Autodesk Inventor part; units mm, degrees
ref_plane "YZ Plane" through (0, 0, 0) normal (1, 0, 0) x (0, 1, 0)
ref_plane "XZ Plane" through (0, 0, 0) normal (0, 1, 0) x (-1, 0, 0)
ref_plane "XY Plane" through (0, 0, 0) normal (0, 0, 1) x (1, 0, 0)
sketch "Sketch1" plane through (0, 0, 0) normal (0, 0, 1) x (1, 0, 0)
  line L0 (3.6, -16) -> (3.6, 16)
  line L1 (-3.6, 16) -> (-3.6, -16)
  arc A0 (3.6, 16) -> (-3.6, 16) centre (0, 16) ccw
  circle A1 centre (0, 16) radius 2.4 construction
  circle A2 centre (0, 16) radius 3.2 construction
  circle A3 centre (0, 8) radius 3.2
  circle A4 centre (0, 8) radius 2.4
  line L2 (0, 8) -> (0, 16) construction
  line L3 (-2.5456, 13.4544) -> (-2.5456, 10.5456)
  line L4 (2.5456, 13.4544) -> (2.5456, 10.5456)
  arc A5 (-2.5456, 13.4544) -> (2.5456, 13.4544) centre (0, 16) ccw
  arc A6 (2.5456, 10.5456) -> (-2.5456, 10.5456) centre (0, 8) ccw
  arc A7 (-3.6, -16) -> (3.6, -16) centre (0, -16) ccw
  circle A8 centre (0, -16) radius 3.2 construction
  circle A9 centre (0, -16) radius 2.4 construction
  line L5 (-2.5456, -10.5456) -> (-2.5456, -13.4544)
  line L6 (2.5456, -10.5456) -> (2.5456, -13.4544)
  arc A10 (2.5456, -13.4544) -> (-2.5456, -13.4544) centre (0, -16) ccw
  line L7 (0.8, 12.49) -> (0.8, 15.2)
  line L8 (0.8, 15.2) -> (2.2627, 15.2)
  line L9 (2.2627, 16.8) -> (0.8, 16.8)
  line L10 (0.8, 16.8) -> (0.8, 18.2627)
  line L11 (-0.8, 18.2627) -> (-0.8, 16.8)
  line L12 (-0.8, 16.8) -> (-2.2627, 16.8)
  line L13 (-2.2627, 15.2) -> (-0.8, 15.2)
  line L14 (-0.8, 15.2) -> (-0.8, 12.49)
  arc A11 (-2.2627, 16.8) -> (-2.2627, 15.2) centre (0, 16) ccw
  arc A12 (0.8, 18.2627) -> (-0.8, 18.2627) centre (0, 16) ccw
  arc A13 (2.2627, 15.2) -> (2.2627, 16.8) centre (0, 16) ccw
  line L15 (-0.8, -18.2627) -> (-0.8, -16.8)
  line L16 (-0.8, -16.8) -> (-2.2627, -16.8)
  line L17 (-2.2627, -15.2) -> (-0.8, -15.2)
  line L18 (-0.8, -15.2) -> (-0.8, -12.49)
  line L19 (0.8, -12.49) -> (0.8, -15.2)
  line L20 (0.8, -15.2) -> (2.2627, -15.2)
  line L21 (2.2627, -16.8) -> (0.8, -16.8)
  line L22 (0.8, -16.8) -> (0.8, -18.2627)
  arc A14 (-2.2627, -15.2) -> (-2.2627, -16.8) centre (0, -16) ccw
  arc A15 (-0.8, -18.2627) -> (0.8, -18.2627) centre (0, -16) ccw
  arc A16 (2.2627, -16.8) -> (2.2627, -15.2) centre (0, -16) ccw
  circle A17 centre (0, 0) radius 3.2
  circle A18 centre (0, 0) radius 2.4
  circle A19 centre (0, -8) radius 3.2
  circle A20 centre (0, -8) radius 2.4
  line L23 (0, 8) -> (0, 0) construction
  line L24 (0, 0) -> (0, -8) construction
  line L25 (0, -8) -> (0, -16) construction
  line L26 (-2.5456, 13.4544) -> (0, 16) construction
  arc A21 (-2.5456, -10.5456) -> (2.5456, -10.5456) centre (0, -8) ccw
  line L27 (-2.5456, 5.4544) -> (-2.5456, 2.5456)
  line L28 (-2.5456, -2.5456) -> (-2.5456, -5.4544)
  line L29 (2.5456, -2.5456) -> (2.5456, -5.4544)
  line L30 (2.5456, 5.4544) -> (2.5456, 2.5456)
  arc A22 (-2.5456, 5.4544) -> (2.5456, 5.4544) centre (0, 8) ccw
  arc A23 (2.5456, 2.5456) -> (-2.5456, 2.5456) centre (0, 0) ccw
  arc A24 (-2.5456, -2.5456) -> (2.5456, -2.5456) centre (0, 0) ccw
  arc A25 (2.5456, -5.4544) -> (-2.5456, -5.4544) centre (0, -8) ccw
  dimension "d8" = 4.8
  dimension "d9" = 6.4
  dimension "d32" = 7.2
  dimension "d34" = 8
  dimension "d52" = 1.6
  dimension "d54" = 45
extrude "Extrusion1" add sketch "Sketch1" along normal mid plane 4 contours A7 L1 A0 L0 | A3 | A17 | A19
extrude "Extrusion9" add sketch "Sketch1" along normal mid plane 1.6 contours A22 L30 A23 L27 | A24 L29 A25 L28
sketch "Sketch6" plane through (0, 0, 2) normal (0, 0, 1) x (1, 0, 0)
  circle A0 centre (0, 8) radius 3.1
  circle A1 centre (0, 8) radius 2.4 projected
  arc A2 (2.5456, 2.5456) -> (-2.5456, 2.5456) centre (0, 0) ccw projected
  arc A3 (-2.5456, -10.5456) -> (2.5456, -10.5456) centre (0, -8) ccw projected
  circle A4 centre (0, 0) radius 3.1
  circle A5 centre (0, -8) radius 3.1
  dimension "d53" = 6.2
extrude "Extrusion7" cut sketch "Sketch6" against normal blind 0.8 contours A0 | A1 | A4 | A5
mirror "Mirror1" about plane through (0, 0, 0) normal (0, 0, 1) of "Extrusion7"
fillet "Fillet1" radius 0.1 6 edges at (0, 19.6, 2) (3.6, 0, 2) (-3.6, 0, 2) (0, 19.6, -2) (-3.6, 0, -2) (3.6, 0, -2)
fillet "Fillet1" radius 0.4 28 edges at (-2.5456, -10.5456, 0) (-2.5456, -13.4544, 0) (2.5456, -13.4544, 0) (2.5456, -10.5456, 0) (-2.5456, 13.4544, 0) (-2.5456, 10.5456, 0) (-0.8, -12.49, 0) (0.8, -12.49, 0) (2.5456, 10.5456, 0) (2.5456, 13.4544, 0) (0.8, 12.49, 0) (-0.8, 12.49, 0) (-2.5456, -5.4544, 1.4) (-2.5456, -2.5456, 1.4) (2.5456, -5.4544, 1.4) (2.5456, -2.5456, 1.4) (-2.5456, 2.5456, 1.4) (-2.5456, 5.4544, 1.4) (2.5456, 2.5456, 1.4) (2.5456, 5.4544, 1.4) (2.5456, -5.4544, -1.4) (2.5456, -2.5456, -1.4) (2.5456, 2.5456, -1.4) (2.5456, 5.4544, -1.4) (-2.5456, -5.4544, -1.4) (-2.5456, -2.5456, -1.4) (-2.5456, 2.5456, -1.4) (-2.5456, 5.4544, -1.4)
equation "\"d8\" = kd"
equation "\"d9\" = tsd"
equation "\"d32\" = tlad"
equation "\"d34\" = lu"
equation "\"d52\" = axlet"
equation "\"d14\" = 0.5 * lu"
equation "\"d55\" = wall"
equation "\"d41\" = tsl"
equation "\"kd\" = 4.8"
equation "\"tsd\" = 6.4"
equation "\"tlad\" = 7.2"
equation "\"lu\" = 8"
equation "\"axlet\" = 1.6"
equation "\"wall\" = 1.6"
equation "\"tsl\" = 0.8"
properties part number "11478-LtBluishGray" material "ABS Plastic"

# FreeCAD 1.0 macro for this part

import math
import FreeCAD as App
import Part
import Sketcher

V = App.Vector
Q = App.Units.Quantity


def edges_at(feature, points):
    """Names of the edges that pass closest to the given points."""
    edges = feature.Shape.Edges
    near = lambda p: min(range(len(edges)), key=lambda i: edges[i].distToShape(Part.Vertex(*p))[0])
    return sorted({f"Edge{near(p) + 1}" for p in points})

doc = App.newDocument("Part")
body = doc.addObject("PartDesign::Body", "Body")

sketch1 = body.newObject("Sketcher::SketchObject", "Sketch")
sketch1.AttachmentSupport = (doc.getObject("XY_Plane"), [""])
sketch1.MapMode = "FlatFace"
sketch1.addGeometry([
    Part.ArcOfCircle(Part.Circle(V(0, -16, 0), V(0, 0, 1), 3.6), math.radians(180), math.radians(360)),
    Part.LineSegment(V(3.6, -16, 0), V(3.6, 16, 0)),
    Part.ArcOfCircle(Part.Circle(V(0, 16, 0), V(0, 0, 1), 3.6), math.radians(0), math.radians(180)),
    Part.LineSegment(V(-3.6, 16, 0), V(-3.6, -16, 0)),
    Part.LineSegment(V(-2.5, -13.5, 0), V(-2.5, -10.5, 0)),
    Part.ArcOfCircle(Part.Circle(V(0, -8, 0), V(0, 0, 1), 3.6), math.radians(-135), math.radians(-45)),
    Part.LineSegment(V(2.5, -10.5, 0), V(2.5, -13.5, 0)),
    Part.ArcOfCircle(Part.Circle(V(0, -16, 0), V(0, 0, 1), 3.6), math.radians(45), math.radians(77)),
    Part.LineSegment(V(0.8, -12.5, 0), V(0.8, -15.2, 0)),
    Part.LineSegment(V(0.8, -15.2, 0), V(2.3, -15.2, 0)),
    Part.ArcOfCircle(Part.Circle(V(0, -16, 0), V(0, 0, 1), 2.4), math.radians(-19), math.radians(19)),
    Part.LineSegment(V(2.3, -16.8, 0), V(0.8, -16.8, 0)),
    Part.LineSegment(V(0.8, -16.8, 0), V(0.8, -18.3, 0)),
    Part.ArcOfCircle(Part.Circle(V(0, -16, 0), V(0, 0, 1), 2.4), math.radians(-109), math.radians(-71)),
    Part.LineSegment(V(-0.8, -18.3, 0), V(-0.8, -16.8, 0)),
    Part.LineSegment(V(-0.8, -16.8, 0), V(-2.3, -16.8, 0)),
    Part.ArcOfCircle(Part.Circle(V(0, -16, 0), V(0, 0, 1), 2.4), math.radians(161), math.radians(199)),
    Part.LineSegment(V(-2.3, -15.2, 0), V(-0.8, -15.2, 0)),
    Part.LineSegment(V(-0.8, -15.2, 0), V(-0.8, -12.5, 0)),
    Part.ArcOfCircle(Part.Circle(V(0, -16, 0), V(0, 0, 1), 3.6), math.radians(103), math.radians(135)),
    Part.LineSegment(V(-2.5, -5.5, 0), V(-2.5, -2.5, 0)),
    Part.ArcOfCircle(Part.Circle(V(0, 0, 0), V(0, 0, 1), 3.6), math.radians(-135), math.radians(-45)),
    Part.LineSegment(V(2.5, -2.5, 0), V(2.5, -5.5, 0)),
    Part.ArcOfCircle(Part.Circle(V(0, -8, 0), V(0, 0, 1), 3.6), math.radians(45), math.radians(135)),
    Part.LineSegment(V(-2.5, 2.5, 0), V(-2.5, 5.5, 0)),
    Part.ArcOfCircle(Part.Circle(V(0, 8, 0), V(0, 0, 1), 3.6), math.radians(-135), math.radians(-45)),
    Part.LineSegment(V(2.5, 5.5, 0), V(2.5, 2.5, 0)),
    Part.ArcOfCircle(Part.Circle(V(0, 0, 0), V(0, 0, 1), 3.6), math.radians(45), math.radians(135)),
    Part.LineSegment(V(-2.5, 10.5, 0), V(-2.5, 13.5, 0)),
    Part.ArcOfCircle(Part.Circle(V(0, 16, 0), V(0, 0, 1), 3.6), math.radians(-135), math.radians(-103)),
    Part.LineSegment(V(-0.8, 12.5, 0), V(-0.8, 15.2, 0)),
    Part.LineSegment(V(-0.8, 15.2, 0), V(-2.3, 15.2, 0)),
    Part.ArcOfCircle(Part.Circle(V(0, 16, 0), V(0, 0, 1), 2.4), math.radians(161), math.radians(199)),
    Part.LineSegment(V(-2.3, 16.8, 0), V(-0.8, 16.8, 0)),
    Part.LineSegment(V(-0.8, 16.8, 0), V(-0.8, 18.3, 0)),
    Part.ArcOfCircle(Part.Circle(V(0, 16, 0), V(0, 0, 1), 2.4), math.radians(71), math.radians(109)),
    Part.LineSegment(V(0.8, 18.3, 0), V(0.8, 16.8, 0)),
    Part.LineSegment(V(0.8, 16.8, 0), V(2.3, 16.8, 0)),
    Part.ArcOfCircle(Part.Circle(V(0, 16, 0), V(0, 0, 1), 2.4), math.radians(-19), math.radians(19)),
    Part.LineSegment(V(2.3, 15.2, 0), V(0.8, 15.2, 0)),
    Part.LineSegment(V(0.8, 15.2, 0), V(0.8, 12.5, 0)),
    Part.ArcOfCircle(Part.Circle(V(0, 16, 0), V(0, 0, 1), 3.6), math.radians(-77), math.radians(-45)),
    Part.LineSegment(V(2.5, 13.5, 0), V(2.5, 10.5, 0)),
    Part.ArcOfCircle(Part.Circle(V(0, 8, 0), V(0, 0, 1), 3.6), math.radians(45), math.radians(135)),
    Part.Circle(V(0, -8, 0), V(0, 0, 1), 2.4),
    Part.Circle(V(0, 0, 0), V(0, 0, 1), 2.4),
    Part.Circle(V(0, 8, 0), V(0, 0, 1), 2.4),
], False)
sketch1.addConstraint([
    Sketcher.Constraint("Tangent", 0, 2, 1, 1),
    Sketcher.Constraint("Tangent", 1, 2, 2, 1),
    Sketcher.Constraint("Tangent", 2, 2, 3, 1),
    Sketcher.Constraint("Tangent", 3, 2, 0, 1),
    Sketcher.Constraint("Coincident", 4, 2, 5, 1),
    Sketcher.Constraint("Coincident", 5, 2, 6, 1),
    Sketcher.Constraint("Coincident", 6, 2, 7, 1),
    Sketcher.Constraint("Coincident", 7, 2, 8, 1),
    Sketcher.Constraint("Coincident", 8, 2, 9, 1),
    Sketcher.Constraint("Coincident", 9, 2, 10, 2),
    Sketcher.Constraint("Coincident", 10, 1, 11, 1),
    Sketcher.Constraint("Coincident", 11, 2, 12, 1),
    Sketcher.Constraint("Coincident", 12, 2, 13, 2),
    Sketcher.Constraint("Coincident", 13, 1, 14, 1),
    Sketcher.Constraint("Coincident", 14, 2, 15, 1),
    Sketcher.Constraint("Coincident", 15, 2, 16, 2),
    Sketcher.Constraint("Coincident", 16, 1, 17, 1),
    Sketcher.Constraint("Coincident", 17, 2, 18, 1),
    Sketcher.Constraint("Coincident", 18, 2, 19, 1),
    Sketcher.Constraint("Coincident", 19, 2, 4, 1),
    Sketcher.Constraint("Coincident", 20, 2, 21, 1),
    Sketcher.Constraint("Coincident", 21, 2, 22, 1),
    Sketcher.Constraint("Coincident", 22, 2, 23, 1),
    Sketcher.Constraint("Coincident", 23, 2, 20, 1),
    Sketcher.Constraint("Coincident", 24, 2, 25, 1),
    Sketcher.Constraint("Coincident", 25, 2, 26, 1),
    Sketcher.Constraint("Coincident", 26, 2, 27, 1),
    Sketcher.Constraint("Coincident", 27, 2, 24, 1),
    Sketcher.Constraint("Coincident", 28, 2, 29, 1),
    Sketcher.Constraint("Coincident", 29, 2, 30, 1),
    Sketcher.Constraint("Coincident", 30, 2, 31, 1),
    Sketcher.Constraint("Coincident", 31, 2, 32, 2),
    Sketcher.Constraint("Coincident", 32, 1, 33, 1),
    Sketcher.Constraint("Coincident", 33, 2, 34, 1),
    Sketcher.Constraint("Coincident", 34, 2, 35, 2),
    Sketcher.Constraint("Coincident", 35, 1, 36, 1),
    Sketcher.Constraint("Coincident", 36, 2, 37, 1),
    Sketcher.Constraint("Coincident", 37, 2, 38, 2),
    Sketcher.Constraint("Coincident", 38, 1, 39, 1),
    Sketcher.Constraint("Coincident", 39, 2, 40, 1),
    Sketcher.Constraint("Coincident", 40, 2, 41, 1),
    Sketcher.Constraint("Coincident", 41, 2, 42, 1),
    Sketcher.Constraint("Coincident", 42, 2, 43, 1),
    Sketcher.Constraint("Coincident", 43, 2, 28, 1),
    Sketcher.Constraint("Vertical", 1),
    Sketcher.Constraint("Vertical", 3),
    Sketcher.Constraint("Vertical", 4),
    Sketcher.Constraint("Vertical", 6),
    Sketcher.Constraint("Vertical", 8),
    Sketcher.Constraint("Horizontal", 9),
    Sketcher.Constraint("Horizontal", 11),
    Sketcher.Constraint("Vertical", 12),
    Sketcher.Constraint("Vertical", 14),
    Sketcher.Constraint("Horizontal", 15),
    Sketcher.Constraint("Horizontal", 17),
    Sketcher.Constraint("Vertical", 18),
    Sketcher.Constraint("Vertical", 20),
    Sketcher.Constraint("Vertical", 22),
    Sketcher.Constraint("Vertical", 24),
    Sketcher.Constraint("Vertical", 26),
    Sketcher.Constraint("Vertical", 28),
    Sketcher.Constraint("Vertical", 30),
    Sketcher.Constraint("Horizontal", 31),
    Sketcher.Constraint("Horizontal", 33),
    Sketcher.Constraint("Vertical", 34),
    Sketcher.Constraint("Vertical", 36),
    Sketcher.Constraint("Horizontal", 37),
    Sketcher.Constraint("Horizontal", 39),
    Sketcher.Constraint("Vertical", 40),
    Sketcher.Constraint("Vertical", 42),
    Sketcher.Constraint("Coincident", 21, 3, -1, 1),
    Sketcher.Constraint("Coincident", 27, 3, -1, 1),
    Sketcher.Constraint("Coincident", 45, 3, -1, 1),
    Sketcher.Constraint("Coincident", 7, 3, 0, 3),
    Sketcher.Constraint("Coincident", 10, 3, 0, 3),
    Sketcher.Constraint("Coincident", 13, 3, 0, 3),
    Sketcher.Constraint("Coincident", 16, 3, 0, 3),
    Sketcher.Constraint("Coincident", 19, 3, 0, 3),
    Sketcher.Constraint("Coincident", 23, 3, 5, 3),
    Sketcher.Constraint("Coincident", 29, 3, 2, 3),
    Sketcher.Constraint("Coincident", 32, 3, 2, 3),
    Sketcher.Constraint("Coincident", 35, 3, 2, 3),
    Sketcher.Constraint("Coincident", 38, 3, 2, 3),
    Sketcher.Constraint("Coincident", 41, 3, 2, 3),
    Sketcher.Constraint("Coincident", 43, 3, 25, 3),
    Sketcher.Constraint("Coincident", 44, 3, 5, 3),
    Sketcher.Constraint("Coincident", 46, 3, 25, 3),
    Sketcher.Constraint("Equal", 2, 5),
    Sketcher.Constraint("Equal", 5, 7),
    Sketcher.Constraint("Equal", 10, 13),
    Sketcher.Constraint("Equal", 13, 16),
    Sketcher.Constraint("Equal", 7, 19),
    Sketcher.Constraint("Equal", 19, 21),
    Sketcher.Constraint("Equal", 21, 23),
    Sketcher.Constraint("Equal", 23, 25),
    Sketcher.Constraint("Equal", 25, 27),
    Sketcher.Constraint("Equal", 27, 29),
    Sketcher.Constraint("Equal", 16, 32),
    Sketcher.Constraint("Equal", 32, 35),
    Sketcher.Constraint("Equal", 35, 38),
    Sketcher.Constraint("Equal", 29, 41),
    Sketcher.Constraint("Equal", 41, 43),
    Sketcher.Constraint("Equal", 38, 44),
    Sketcher.Constraint("Equal", 44, 45),
    Sketcher.Constraint("Equal", 45, 46),
    Sketcher.Constraint("Symmetric", 0, 3, 2, 3, -1, 1),
    Sketcher.Constraint("Symmetric", 5, 3, 25, 3, -1, 1),
    Sketcher.Constraint("Symmetric", 8, 2, 30, 2, -1, 1),
    Sketcher.Constraint("Symmetric", 11, 2, 33, 2, -1, 1),
    Sketcher.Constraint("Symmetric", 14, 2, 36, 2, -1, 1),
    Sketcher.Constraint("Symmetric", 17, 2, 39, 2, -1, 1),
    Sketcher.Constraint("Symmetric", 4, 2, 5, 2, -2),
    Sketcher.Constraint("Symmetric", 11, 2, 14, 2, -2),
    Sketcher.Constraint("Symmetric", 8, 2, 17, 2, -2),
    Sketcher.Constraint("Horizontal", 20, 2, 21, 2),
    Sketcher.Constraint("Horizontal", 24, 2, 25, 2),
    Sketcher.Constraint("Horizontal", 28, 2, 41, 2),
    Sketcher.Constraint("Vertical", 9, 2, 10, 1),
    Sketcher.Constraint("Vertical", 8, 2, 11, 2),
    Sketcher.Constraint("Vertical", 19, 2, 20, 2),
    Sketcher.Constraint("Vertical", 23, 2, 24, 2),
    Sketcher.Constraint("Vertical", 27, 2, 28, 2),
    Sketcher.Constraint("Equal", 39, 12),
    Sketcher.Constraint("Equal", 6, 20),
    Sketcher.Constraint("Diameter", 44, Q("4.8 mm")),
    Sketcher.Constraint("Radius", 0, Q("3.6 mm")),
    Sketcher.Constraint("DistanceY", 5, 3, -1, 1, Q("8 mm")),
    Sketcher.Constraint("DistanceY", 8, 2, 8, 1, Q("2.71 mm")),
    Sketcher.Constraint("DistanceY", 4, 1, 4, 2, Q("2.9088 mm")),
])
pad1 = body.newObject("PartDesign::Pad", "Pad")
pad1.Profile = sketch1
pad1.Length = 4
pad1.Midplane = True

sketch2 = body.newObject("Sketcher::SketchObject", "Sketch001")
sketch2.AttachmentSupport = (doc.getObject("XY_Plane"), [""])
sketch2.MapMode = "FlatFace"
sketch2.addGeometry([
    Part.ArcOfCircle(Part.Circle(V(0, 8, 0), V(0, 0, 1), 3.6), math.radians(-135), math.radians(-45)),
    Part.LineSegment(V(-2.5, 5.5, 0), V(-2.5, 2.5, 0)),
    Part.ArcOfCircle(Part.Circle(V(0, 0, 0), V(0, 0, 1), 3.6), math.radians(45), math.radians(135)),
    Part.LineSegment(V(2.5, 2.5, 0), V(2.5, 5.5, 0)),
    Part.ArcOfCircle(Part.Circle(V(0, 0, 0), V(0, 0, 1), 3.6), math.radians(-135), math.radians(-45)),
    Part.LineSegment(V(-2.5, -2.5, 0), V(-2.5, -5.5, 0)),
    Part.ArcOfCircle(Part.Circle(V(0, -8, 0), V(0, 0, 1), 3.6), math.radians(45), math.radians(135)),
    Part.LineSegment(V(2.5, -5.5, 0), V(2.5, -2.5, 0)),
], False)
sketch2.addConstraint([
    Sketcher.Constraint("Coincident", 0, 1, 1, 1),
    Sketcher.Constraint("Coincident", 1, 2, 2, 2),
    Sketcher.Constraint("Coincident", 2, 1, 3, 1),
    Sketcher.Constraint("Coincident", 3, 2, 0, 2),
    Sketcher.Constraint("Coincident", 4, 1, 5, 1),
    Sketcher.Constraint("Coincident", 5, 2, 6, 2),
    Sketcher.Constraint("Coincident", 6, 1, 7, 1),
    Sketcher.Constraint("Coincident", 7, 2, 4, 2),
    Sketcher.Constraint("Vertical", 1),
    Sketcher.Constraint("Vertical", 3),
    Sketcher.Constraint("Vertical", 5),
    Sketcher.Constraint("Vertical", 7),
    Sketcher.Constraint("Coincident", 2, 3, -1, 1),
    Sketcher.Constraint("Coincident", 4, 3, -1, 1),
    Sketcher.Constraint("Equal", 0, 2),
    Sketcher.Constraint("Equal", 2, 4),
    Sketcher.Constraint("Equal", 4, 6),
    Sketcher.Constraint("Symmetric", 0, 3, 6, 3, -1, 1),
    Sketcher.Constraint("Symmetric", 0, 1, 3, 2, -2),
    Sketcher.Constraint("Horizontal", 5, 2, 6, 1),
    Sketcher.Constraint("Vertical", 1, 2, 4, 1),
    Sketcher.Constraint("Radius", 0, Q("3.6 mm")),
    Sketcher.Constraint("DistanceY", -1, 1, 0, 3, Q("8 mm")),
    Sketcher.Constraint("DistanceY", 1, 2, 1, 1, Q("2.9088 mm")),
])
pad2 = body.newObject("PartDesign::Pad", "Pad001")
pad2.Profile = sketch2
pad2.Length = 1.6
pad2.Midplane = True

sketch3 = body.newObject("Sketcher::SketchObject", "Sketch002")
sketch3.AttachmentSupport = (doc.getObject("XY_Plane"), [""])
sketch3.MapMode = "FlatFace"
sketch3.AttachmentOffset = App.Placement(V(0, 0, 2), App.Rotation())
sketch3.addGeometry([
    Part.Circle(V(0, 8, 0), V(0, 0, 1), 3.1),
    Part.Circle(V(0, 0, 0), V(0, 0, 1), 3.1),
    Part.Circle(V(0, -8, 0), V(0, 0, 1), 3.1),
], False)
sketch3.addConstraint([
    Sketcher.Constraint("Coincident", 1, 3, -1, 1),
    Sketcher.Constraint("Equal", 0, 1),
    Sketcher.Constraint("Equal", 1, 2),
    Sketcher.Constraint("Symmetric", 0, 3, 2, 3, -1, 1),
    Sketcher.Constraint("PointOnObject", 0, 3, -2),
    Sketcher.Constraint("Diameter", 0, Q("6.2 mm")),
    Sketcher.Constraint("DistanceY", -1, 1, 0, 3, Q("8 mm")),
])
pocket1 = body.newObject("PartDesign::Pocket", "Pocket")
pocket1.Profile = sketch3
pocket1.Length = 0.8
doc.recompute()

mirrored = body.newObject("PartDesign::Mirrored", "Mirrored")
mirrored.Originals = [pocket1]
mirrored.MirrorPlane = (doc.getObject("XY_Plane"), [""])
body.Tip = mirrored
doc.recompute()

fillet = body.newObject("PartDesign::Fillet", "Fillet")
fillet.Base = (mirrored, edges_at(mirrored, [
    (0, 19.6, 2),
    (3.6, 0, 2),
    (-3.6, 0, 2),
    (0, 19.6, -2),
    (-3.6, 0, -2),
    (3.6, 0, -2),
]))
fillet.Radius = 0.1
doc.recompute()

fillet2 = body.newObject("PartDesign::Fillet", "Fillet001")
fillet2.Base = (fillet, edges_at(fillet, [
    (-2.546, -10.546, 0),
    (-2.546, -13.454, 0),
    (2.546, -13.454, 0),
    (2.546, -10.546, 0),
    (-2.546, 13.454, 0),
    (-2.546, 10.546, 0),
    (-0.8, -12.49, 0),
    (0.8, -12.49, 0),
    (2.546, 10.546, 0),
    (2.546, 13.454, 0),
    (0.8, 12.49, 0),
    (-0.8, 12.49, 0),
    (-2.546, -5.454, 1.4),
    (-2.546, -2.546, 1.4),
    (2.546, -5.454, 1.4),
    (2.546, -2.546, 1.4),
    (-2.546, 2.546, 1.4),
    (-2.546, 5.454, 1.4),
    (2.546, 2.546, 1.4),
    (2.546, 5.454, 1.4),
    (2.546, -5.454, -1.4),
    (2.546, -2.546, -1.4),
    (2.546, 2.546, -1.4),
    (2.546, 5.454, -1.4),
    (-2.546, -5.454, -1.4),
    (-2.546, -2.546, -1.4),
    (-2.546, 2.546, -1.4),
    (-2.546, 5.454, -1.4),
]))
fillet2.Radius = 0.4

doc.recompute()
